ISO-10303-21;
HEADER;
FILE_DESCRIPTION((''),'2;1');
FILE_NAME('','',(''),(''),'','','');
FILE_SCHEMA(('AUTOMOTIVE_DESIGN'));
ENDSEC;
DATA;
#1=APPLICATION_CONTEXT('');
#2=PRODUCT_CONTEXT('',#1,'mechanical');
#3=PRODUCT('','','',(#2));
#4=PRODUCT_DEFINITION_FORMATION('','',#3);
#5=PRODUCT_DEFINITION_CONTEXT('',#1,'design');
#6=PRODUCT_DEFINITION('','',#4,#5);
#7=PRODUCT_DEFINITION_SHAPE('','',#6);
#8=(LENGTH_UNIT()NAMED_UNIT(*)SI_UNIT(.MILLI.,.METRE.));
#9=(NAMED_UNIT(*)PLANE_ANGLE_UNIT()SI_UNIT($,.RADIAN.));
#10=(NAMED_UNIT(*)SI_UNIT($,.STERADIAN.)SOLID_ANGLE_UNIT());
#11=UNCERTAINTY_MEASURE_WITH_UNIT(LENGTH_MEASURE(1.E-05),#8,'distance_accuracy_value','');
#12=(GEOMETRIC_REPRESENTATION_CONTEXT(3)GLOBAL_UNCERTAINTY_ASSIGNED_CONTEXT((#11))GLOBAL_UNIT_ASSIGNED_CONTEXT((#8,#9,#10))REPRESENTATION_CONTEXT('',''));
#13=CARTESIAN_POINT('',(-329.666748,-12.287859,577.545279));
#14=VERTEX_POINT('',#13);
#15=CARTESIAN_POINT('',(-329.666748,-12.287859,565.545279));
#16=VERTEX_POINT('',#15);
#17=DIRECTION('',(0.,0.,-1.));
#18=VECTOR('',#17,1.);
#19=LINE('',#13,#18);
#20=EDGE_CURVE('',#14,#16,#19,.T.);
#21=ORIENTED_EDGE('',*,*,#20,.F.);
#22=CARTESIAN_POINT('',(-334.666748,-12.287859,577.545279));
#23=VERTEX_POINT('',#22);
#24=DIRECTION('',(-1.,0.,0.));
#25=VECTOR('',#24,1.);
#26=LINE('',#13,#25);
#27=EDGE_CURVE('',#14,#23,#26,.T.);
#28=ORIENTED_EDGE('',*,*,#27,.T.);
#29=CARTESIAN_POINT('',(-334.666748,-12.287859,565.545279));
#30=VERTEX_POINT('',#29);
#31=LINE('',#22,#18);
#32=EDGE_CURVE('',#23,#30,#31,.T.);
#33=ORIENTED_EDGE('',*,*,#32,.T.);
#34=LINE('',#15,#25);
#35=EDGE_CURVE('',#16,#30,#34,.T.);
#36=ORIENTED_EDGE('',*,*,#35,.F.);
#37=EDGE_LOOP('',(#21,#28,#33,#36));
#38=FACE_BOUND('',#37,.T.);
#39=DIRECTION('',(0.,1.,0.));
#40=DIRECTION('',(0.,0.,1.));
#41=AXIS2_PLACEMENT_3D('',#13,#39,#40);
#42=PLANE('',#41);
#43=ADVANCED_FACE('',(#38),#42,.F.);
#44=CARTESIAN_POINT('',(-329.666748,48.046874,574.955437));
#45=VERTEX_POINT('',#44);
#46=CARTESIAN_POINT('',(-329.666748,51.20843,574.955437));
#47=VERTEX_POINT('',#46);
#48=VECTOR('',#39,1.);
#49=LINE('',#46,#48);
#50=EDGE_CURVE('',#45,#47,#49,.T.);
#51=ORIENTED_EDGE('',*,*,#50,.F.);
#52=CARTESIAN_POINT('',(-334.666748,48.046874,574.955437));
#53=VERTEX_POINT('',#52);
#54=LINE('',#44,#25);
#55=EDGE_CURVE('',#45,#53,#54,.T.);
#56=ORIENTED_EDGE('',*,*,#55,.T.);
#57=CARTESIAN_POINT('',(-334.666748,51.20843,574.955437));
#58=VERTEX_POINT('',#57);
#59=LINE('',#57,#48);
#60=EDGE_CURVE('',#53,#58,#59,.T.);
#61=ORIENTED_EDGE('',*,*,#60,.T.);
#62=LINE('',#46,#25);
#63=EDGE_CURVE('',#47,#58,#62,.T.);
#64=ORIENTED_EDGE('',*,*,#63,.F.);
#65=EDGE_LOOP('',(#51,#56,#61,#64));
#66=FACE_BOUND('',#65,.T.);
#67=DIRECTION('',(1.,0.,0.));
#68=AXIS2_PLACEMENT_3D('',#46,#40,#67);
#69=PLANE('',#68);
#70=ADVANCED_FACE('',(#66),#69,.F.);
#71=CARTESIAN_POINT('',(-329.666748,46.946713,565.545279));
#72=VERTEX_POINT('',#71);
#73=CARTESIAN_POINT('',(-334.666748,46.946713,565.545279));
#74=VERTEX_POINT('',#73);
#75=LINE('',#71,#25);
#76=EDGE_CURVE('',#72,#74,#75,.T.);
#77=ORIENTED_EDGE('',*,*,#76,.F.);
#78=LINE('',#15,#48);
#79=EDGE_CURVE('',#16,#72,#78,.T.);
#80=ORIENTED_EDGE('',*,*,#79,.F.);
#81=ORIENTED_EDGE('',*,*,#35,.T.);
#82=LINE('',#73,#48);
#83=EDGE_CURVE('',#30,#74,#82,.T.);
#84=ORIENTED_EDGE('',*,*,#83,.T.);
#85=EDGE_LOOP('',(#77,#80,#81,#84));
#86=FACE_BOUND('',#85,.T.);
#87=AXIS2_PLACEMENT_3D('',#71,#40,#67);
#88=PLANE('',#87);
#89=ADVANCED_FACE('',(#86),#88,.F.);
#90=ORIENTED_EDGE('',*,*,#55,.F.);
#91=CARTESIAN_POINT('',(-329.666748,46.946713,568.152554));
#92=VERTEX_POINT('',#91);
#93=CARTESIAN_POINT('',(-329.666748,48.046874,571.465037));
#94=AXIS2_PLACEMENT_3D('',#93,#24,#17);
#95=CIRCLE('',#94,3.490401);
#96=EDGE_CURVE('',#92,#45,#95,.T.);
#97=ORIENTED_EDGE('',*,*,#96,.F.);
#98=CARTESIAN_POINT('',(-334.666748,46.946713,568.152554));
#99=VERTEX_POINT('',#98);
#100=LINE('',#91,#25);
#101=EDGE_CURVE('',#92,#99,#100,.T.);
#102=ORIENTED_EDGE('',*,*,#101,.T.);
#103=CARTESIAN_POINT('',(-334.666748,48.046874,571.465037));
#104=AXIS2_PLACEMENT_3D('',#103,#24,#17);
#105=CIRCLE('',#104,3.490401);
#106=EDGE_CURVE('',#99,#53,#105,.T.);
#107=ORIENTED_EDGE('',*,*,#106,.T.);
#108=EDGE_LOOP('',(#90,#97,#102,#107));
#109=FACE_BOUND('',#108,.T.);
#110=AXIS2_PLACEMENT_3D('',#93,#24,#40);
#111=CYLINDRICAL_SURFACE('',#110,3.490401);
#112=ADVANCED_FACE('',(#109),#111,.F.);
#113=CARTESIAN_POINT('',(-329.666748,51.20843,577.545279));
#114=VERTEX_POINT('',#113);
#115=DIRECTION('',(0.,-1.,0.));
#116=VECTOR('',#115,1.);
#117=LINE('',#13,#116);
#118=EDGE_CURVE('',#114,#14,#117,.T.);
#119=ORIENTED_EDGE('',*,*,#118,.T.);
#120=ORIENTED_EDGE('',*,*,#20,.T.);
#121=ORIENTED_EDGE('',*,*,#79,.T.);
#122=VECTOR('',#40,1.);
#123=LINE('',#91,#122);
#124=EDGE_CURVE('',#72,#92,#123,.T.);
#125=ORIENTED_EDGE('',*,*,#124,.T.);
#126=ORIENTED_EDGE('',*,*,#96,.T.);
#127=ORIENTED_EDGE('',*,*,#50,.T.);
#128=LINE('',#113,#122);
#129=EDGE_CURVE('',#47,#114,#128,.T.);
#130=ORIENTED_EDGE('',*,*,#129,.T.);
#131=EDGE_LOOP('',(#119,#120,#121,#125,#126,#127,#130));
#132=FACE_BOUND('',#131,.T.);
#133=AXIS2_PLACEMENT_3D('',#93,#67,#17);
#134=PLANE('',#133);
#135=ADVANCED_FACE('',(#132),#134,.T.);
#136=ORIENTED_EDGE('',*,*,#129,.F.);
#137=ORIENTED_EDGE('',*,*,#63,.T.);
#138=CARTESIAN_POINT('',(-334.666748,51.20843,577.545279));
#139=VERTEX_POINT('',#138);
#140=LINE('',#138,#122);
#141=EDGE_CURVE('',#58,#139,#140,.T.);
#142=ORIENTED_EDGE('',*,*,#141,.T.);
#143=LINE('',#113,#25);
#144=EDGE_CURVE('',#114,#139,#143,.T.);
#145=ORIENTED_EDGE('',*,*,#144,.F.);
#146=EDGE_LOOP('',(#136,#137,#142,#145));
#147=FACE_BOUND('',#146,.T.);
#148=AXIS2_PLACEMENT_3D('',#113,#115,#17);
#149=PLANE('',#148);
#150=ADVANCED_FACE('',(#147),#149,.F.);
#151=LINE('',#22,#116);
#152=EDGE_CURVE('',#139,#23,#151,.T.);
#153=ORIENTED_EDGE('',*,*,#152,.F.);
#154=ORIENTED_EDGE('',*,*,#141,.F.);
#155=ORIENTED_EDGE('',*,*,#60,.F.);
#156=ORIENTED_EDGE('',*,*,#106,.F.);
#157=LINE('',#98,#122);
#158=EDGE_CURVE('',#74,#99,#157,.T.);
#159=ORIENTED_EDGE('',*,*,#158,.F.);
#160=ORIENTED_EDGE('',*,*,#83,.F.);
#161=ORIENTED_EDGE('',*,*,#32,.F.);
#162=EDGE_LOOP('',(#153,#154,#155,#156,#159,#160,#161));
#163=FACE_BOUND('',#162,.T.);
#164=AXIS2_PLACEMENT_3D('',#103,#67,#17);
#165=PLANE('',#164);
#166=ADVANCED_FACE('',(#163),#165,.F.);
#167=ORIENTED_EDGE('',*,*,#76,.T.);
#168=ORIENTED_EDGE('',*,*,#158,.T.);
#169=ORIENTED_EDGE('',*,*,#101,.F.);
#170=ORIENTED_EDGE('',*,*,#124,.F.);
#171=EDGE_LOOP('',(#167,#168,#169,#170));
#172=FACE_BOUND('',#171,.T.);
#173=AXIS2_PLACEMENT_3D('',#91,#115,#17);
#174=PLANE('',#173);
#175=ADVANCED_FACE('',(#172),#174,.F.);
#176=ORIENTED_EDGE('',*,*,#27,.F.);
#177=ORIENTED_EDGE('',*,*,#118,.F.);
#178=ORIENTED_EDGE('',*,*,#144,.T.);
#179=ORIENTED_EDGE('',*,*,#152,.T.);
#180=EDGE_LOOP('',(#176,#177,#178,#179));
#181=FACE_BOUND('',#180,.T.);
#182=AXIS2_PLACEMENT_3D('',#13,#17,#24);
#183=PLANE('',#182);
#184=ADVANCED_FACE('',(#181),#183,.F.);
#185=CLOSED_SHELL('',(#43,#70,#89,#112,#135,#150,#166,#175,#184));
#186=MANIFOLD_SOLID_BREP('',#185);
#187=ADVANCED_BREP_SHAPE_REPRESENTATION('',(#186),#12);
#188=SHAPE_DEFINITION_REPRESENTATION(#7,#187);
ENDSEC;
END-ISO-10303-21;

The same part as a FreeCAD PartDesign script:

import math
import FreeCAD as App
import Part
import Sketcher
from FreeCAD import Vector

doc = App.newDocument("Part")
body = doc.addObject("PartDesign::Body", "Body")

sketch1 = body.newObject("Sketcher::SketchObject", "Sketch")
sketch1.AttachmentSupport = (doc.getObject("YZ_Plane"), [""])
sketch1.MapMode = "FlatFace"
sketch1.AttachmentOffset = App.Placement(Vector(0, 0, -334.666748), App.Rotation())
sketch1.addGeometry(Part.LineSegment(Vector(-12.287859, 577.545279, 0), Vector(-12.287859, 565.545279, 0)), False)
sketch1.addGeometry(Part.LineSegment(Vector(-12.287859, 565.545279, 0), Vector(46.946713, 565.545279, 0)), False)
sketch1.addGeometry(Part.LineSegment(Vector(46.946713, 565.545279, 0), Vector(46.946713, 568.152554, 0)), False)
sketch1.addGeometry(Part.ArcOfCircle(Part.Circle(Vector(48.046874, 571.465037, 0), Vector(0, 0, 1), 3.490401), math.radians(90), math.radians(251.627336)), False)
sketch1.addGeometry(Part.LineSegment(Vector(48.046874, 574.955437, 0), Vector(51.20843, 574.955437, 0)), False)
sketch1.addGeometry(Part.LineSegment(Vector(51.20843, 574.955437, 0), Vector(51.20843, 577.545279, 0)), False)
sketch1.addGeometry(Part.LineSegment(Vector(51.20843, 577.545279, 0), Vector(-12.287859, 577.545279, 0)), False)
sketch1.addConstraint(Sketcher.Constraint("Coincident", 0, 2, 1, 1))
sketch1.addConstraint(Sketcher.Constraint("Coincident", 1, 2, 2, 1))
sketch1.addConstraint(Sketcher.Constraint("Coincident", 2, 2, 3, 2))
sketch1.addConstraint(Sketcher.Constraint("Tangent", 3, 1, 4, 1))
sketch1.addConstraint(Sketcher.Constraint("Coincident", 4, 2, 5, 1))
sketch1.addConstraint(Sketcher.Constraint("Coincident", 5, 2, 6, 1))
sketch1.addConstraint(Sketcher.Constraint("Coincident", 6, 2, 0, 1))
sketch1.addConstraint(Sketcher.Constraint("Vertical", 0))
sketch1.addConstraint(Sketcher.Constraint("Horizontal", 1))
sketch1.addConstraint(Sketcher.Constraint("Vertical", 2))
sketch1.addConstraint(Sketcher.Constraint("Horizontal", 4))
sketch1.addConstraint(Sketcher.Constraint("Vertical", 5))
sketch1.addConstraint(Sketcher.Constraint("Horizontal", 6))
sketch1.addConstraint(Sketcher.Constraint("DistanceY", 0, 2, 0, 1, 12.0))
sketch1.addConstraint(Sketcher.Constraint("Radius", 3, 3.490401))
sketch1.addConstraint(Sketcher.Constraint("DistanceX", 6, 2, 6, 1, 63.496289))
sketch1.addConstraint(Sketcher.Constraint("DistanceY", 5, 1, 5, 2, 2.589842))
sketch1.addConstraint(Sketcher.Constraint("DistanceX", 1, 1, 1, 2, 59.234572))
sketch1.addConstraint(Sketcher.Constraint("DistanceX", 4, 1, 4, 2, 3.161555))
sketch1.addConstraint(Sketcher.Constraint("DistanceX", 0, 2, -1, 1, 12.287859))
sketch1.addConstraint(Sketcher.Constraint("DistanceY", -1, 1, 0, 2, 565.545279))
pad1 = body.newObject("PartDesign::Pad", "Pad")
pad1.Profile = sketch1
pad1.Length = 5

doc.recompute()
